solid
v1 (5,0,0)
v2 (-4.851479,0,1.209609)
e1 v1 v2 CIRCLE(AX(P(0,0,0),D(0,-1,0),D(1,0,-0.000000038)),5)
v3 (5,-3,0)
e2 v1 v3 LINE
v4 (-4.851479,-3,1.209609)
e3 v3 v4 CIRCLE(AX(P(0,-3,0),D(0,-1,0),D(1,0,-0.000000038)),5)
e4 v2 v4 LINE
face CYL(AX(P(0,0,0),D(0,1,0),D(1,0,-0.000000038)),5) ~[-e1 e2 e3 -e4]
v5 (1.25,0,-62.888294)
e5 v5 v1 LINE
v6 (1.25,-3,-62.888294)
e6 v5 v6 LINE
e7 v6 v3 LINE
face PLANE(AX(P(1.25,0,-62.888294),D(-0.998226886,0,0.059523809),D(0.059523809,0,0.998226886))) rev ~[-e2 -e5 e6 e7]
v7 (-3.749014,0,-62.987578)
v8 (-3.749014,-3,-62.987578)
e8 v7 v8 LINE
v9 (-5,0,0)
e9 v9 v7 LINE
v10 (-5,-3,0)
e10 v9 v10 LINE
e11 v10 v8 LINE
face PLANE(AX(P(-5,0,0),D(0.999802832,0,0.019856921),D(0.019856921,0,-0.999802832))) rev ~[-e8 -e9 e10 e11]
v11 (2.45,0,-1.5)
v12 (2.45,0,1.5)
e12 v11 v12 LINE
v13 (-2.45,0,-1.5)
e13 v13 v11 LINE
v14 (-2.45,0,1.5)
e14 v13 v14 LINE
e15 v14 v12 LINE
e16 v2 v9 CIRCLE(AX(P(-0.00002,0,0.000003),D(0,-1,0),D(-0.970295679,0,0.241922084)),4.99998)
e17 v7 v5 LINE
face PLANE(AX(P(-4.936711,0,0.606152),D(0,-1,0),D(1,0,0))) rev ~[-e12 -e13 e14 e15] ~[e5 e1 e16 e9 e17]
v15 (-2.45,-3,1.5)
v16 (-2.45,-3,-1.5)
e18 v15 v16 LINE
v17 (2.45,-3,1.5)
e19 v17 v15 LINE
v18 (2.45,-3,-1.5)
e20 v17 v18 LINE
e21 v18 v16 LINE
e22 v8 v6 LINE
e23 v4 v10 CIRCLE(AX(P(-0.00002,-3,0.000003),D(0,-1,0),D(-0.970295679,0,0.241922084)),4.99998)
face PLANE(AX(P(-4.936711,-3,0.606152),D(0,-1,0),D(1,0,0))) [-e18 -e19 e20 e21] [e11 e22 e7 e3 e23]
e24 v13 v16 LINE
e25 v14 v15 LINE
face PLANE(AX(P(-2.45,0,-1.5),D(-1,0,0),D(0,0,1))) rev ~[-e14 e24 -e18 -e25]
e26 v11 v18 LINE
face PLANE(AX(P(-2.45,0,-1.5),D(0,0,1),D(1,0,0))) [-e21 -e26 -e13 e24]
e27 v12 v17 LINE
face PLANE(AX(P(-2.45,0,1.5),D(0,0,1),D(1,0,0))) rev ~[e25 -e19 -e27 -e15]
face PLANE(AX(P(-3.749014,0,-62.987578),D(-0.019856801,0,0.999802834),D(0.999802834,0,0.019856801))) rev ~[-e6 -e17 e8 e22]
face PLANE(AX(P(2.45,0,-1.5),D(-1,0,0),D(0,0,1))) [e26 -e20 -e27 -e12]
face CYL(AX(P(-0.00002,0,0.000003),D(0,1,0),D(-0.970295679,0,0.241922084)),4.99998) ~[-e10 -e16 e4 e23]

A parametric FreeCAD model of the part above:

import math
import FreeCAD as App
import Part
import Sketcher

V = App.Vector

doc = App.newDocument("Part")
body = doc.addObject("PartDesign::Body", "Body")

sketch1 = body.newObject("Sketcher::SketchObject", "Sketch")
sketch1.AttachmentSupport = (doc.getObject("XZ_Plane"), [""])
sketch1.MapMode = "FlatFace"
sketch1.addGeometry([
    Part.ArcOfCircle(Part.Circle(V(-0.00002, 0.000003, 0), V(0, 0, 1), 4.99998), math.radians(165.999989), math.radians(180.00004)),
    Part.LineSegment(V(-5, 0, 0), V(-3.749014, -62.987578, 0)),
    Part.LineSegment(V(-3.749014, -62.987578, 0), V(1.25, -62.888294, 0)),
    Part.LineSegment(V(1.25, -62.888294, 0), V(5, 0, 0)),
    Part.ArcOfCircle(Part.Circle(V(0, 0, 0), V(0, 0, 1), 5), math.radians(-0.000002), math.radians(166.000008)),
], False)
sketch1.addConstraint([
    Sketcher.Constraint("Coincident", 0, 2, 1, 1),
    Sketcher.Constraint("Coincident", 1, 2, 2, 1),
    Sketcher.Constraint("Coincident", 2, 2, 3, 1),
    Sketcher.Constraint("Coincident", 3, 2, 4, 1),
    Sketcher.Constraint("Coincident", 4, 2, 0, 1),
    Sketcher.Constraint("Coincident", 4, 3, -1, 1),
    Sketcher.Constraint("PointOnObject", 0, 2, -1),
    Sketcher.Constraint("PointOnObject", 3, 2, -1),
    Sketcher.Constraint("Radius", 4, 5.0),
    Sketcher.Constraint("Distance", 1, 63.0),
    Sketcher.Constraint("Distance", 2, 5.0),
    Sketcher.Constraint("Distance", 3, 63.0),
    Sketcher.Constraint("DistanceX", 0, 2, -1, 1, 5.0),
    Sketcher.Constraint("DistanceX", -1, 1, 2, 2, 1.25),
    Sketcher.Constraint("Radius", 0, 4.99998),
    Sketcher.Constraint("DistanceX", 4, 2, -1, 1, 4.851479),
])
pad1 = body.newObject("PartDesign::Pad", "Pad")
pad1.Profile = sketch1
pad1.Length = 3

sketch2 = body.newObject("Sketcher::SketchObject", "Sketch001")
sketch2.AttachmentSupport = (doc.getObject("XZ_Plane"), [""])
sketch2.MapMode = "FlatFace"
sketch2.addGeometry([
    Part.LineSegment(V(-2.5, 1.5, 0), V(-2.5, -1.5, 0)),
    Part.LineSegment(V(-2.5, -1.5, 0), V(2.5, -1.5, 0)),
    Part.LineSegment(V(2.5, -1.5, 0), V(2.5, 1.5, 0)),
    Part.LineSegment(V(2.5, 1.5, 0), V(-2.5, 1.5, 0)),
], False)
sketch2.addConstraint([
    Sketcher.Constraint("Coincident", 0, 2, 1, 1),
    Sketcher.Constraint("Coincident", 1, 2, 2, 1),
    Sketcher.Constraint("Coincident", 2, 2, 3, 1),
    Sketcher.Constraint("Coincident", 3, 2, 0, 1),
    Sketcher.Constraint("Vertical", 0),
    Sketcher.Constraint("Horizontal", 1),
    Sketcher.Constraint("Vertical", 2),
    Sketcher.Constraint("Horizontal", 3),
    Sketcher.Constraint("Symmetric", 0, 2, 2, 2, -1, 1),
    Sketcher.Constraint("DistanceY", 0, 2, 0, 1, 3.0),
    Sketcher.Constraint("DistanceX", 1, 1, 1, 2, 4.9),
])
pocket1 = body.newObject("PartDesign::Pocket", "Pocket")
pocket1.Profile = sketch2
pocket1.Length = 25
pocket1.Reversed = True

doc.recompute()
